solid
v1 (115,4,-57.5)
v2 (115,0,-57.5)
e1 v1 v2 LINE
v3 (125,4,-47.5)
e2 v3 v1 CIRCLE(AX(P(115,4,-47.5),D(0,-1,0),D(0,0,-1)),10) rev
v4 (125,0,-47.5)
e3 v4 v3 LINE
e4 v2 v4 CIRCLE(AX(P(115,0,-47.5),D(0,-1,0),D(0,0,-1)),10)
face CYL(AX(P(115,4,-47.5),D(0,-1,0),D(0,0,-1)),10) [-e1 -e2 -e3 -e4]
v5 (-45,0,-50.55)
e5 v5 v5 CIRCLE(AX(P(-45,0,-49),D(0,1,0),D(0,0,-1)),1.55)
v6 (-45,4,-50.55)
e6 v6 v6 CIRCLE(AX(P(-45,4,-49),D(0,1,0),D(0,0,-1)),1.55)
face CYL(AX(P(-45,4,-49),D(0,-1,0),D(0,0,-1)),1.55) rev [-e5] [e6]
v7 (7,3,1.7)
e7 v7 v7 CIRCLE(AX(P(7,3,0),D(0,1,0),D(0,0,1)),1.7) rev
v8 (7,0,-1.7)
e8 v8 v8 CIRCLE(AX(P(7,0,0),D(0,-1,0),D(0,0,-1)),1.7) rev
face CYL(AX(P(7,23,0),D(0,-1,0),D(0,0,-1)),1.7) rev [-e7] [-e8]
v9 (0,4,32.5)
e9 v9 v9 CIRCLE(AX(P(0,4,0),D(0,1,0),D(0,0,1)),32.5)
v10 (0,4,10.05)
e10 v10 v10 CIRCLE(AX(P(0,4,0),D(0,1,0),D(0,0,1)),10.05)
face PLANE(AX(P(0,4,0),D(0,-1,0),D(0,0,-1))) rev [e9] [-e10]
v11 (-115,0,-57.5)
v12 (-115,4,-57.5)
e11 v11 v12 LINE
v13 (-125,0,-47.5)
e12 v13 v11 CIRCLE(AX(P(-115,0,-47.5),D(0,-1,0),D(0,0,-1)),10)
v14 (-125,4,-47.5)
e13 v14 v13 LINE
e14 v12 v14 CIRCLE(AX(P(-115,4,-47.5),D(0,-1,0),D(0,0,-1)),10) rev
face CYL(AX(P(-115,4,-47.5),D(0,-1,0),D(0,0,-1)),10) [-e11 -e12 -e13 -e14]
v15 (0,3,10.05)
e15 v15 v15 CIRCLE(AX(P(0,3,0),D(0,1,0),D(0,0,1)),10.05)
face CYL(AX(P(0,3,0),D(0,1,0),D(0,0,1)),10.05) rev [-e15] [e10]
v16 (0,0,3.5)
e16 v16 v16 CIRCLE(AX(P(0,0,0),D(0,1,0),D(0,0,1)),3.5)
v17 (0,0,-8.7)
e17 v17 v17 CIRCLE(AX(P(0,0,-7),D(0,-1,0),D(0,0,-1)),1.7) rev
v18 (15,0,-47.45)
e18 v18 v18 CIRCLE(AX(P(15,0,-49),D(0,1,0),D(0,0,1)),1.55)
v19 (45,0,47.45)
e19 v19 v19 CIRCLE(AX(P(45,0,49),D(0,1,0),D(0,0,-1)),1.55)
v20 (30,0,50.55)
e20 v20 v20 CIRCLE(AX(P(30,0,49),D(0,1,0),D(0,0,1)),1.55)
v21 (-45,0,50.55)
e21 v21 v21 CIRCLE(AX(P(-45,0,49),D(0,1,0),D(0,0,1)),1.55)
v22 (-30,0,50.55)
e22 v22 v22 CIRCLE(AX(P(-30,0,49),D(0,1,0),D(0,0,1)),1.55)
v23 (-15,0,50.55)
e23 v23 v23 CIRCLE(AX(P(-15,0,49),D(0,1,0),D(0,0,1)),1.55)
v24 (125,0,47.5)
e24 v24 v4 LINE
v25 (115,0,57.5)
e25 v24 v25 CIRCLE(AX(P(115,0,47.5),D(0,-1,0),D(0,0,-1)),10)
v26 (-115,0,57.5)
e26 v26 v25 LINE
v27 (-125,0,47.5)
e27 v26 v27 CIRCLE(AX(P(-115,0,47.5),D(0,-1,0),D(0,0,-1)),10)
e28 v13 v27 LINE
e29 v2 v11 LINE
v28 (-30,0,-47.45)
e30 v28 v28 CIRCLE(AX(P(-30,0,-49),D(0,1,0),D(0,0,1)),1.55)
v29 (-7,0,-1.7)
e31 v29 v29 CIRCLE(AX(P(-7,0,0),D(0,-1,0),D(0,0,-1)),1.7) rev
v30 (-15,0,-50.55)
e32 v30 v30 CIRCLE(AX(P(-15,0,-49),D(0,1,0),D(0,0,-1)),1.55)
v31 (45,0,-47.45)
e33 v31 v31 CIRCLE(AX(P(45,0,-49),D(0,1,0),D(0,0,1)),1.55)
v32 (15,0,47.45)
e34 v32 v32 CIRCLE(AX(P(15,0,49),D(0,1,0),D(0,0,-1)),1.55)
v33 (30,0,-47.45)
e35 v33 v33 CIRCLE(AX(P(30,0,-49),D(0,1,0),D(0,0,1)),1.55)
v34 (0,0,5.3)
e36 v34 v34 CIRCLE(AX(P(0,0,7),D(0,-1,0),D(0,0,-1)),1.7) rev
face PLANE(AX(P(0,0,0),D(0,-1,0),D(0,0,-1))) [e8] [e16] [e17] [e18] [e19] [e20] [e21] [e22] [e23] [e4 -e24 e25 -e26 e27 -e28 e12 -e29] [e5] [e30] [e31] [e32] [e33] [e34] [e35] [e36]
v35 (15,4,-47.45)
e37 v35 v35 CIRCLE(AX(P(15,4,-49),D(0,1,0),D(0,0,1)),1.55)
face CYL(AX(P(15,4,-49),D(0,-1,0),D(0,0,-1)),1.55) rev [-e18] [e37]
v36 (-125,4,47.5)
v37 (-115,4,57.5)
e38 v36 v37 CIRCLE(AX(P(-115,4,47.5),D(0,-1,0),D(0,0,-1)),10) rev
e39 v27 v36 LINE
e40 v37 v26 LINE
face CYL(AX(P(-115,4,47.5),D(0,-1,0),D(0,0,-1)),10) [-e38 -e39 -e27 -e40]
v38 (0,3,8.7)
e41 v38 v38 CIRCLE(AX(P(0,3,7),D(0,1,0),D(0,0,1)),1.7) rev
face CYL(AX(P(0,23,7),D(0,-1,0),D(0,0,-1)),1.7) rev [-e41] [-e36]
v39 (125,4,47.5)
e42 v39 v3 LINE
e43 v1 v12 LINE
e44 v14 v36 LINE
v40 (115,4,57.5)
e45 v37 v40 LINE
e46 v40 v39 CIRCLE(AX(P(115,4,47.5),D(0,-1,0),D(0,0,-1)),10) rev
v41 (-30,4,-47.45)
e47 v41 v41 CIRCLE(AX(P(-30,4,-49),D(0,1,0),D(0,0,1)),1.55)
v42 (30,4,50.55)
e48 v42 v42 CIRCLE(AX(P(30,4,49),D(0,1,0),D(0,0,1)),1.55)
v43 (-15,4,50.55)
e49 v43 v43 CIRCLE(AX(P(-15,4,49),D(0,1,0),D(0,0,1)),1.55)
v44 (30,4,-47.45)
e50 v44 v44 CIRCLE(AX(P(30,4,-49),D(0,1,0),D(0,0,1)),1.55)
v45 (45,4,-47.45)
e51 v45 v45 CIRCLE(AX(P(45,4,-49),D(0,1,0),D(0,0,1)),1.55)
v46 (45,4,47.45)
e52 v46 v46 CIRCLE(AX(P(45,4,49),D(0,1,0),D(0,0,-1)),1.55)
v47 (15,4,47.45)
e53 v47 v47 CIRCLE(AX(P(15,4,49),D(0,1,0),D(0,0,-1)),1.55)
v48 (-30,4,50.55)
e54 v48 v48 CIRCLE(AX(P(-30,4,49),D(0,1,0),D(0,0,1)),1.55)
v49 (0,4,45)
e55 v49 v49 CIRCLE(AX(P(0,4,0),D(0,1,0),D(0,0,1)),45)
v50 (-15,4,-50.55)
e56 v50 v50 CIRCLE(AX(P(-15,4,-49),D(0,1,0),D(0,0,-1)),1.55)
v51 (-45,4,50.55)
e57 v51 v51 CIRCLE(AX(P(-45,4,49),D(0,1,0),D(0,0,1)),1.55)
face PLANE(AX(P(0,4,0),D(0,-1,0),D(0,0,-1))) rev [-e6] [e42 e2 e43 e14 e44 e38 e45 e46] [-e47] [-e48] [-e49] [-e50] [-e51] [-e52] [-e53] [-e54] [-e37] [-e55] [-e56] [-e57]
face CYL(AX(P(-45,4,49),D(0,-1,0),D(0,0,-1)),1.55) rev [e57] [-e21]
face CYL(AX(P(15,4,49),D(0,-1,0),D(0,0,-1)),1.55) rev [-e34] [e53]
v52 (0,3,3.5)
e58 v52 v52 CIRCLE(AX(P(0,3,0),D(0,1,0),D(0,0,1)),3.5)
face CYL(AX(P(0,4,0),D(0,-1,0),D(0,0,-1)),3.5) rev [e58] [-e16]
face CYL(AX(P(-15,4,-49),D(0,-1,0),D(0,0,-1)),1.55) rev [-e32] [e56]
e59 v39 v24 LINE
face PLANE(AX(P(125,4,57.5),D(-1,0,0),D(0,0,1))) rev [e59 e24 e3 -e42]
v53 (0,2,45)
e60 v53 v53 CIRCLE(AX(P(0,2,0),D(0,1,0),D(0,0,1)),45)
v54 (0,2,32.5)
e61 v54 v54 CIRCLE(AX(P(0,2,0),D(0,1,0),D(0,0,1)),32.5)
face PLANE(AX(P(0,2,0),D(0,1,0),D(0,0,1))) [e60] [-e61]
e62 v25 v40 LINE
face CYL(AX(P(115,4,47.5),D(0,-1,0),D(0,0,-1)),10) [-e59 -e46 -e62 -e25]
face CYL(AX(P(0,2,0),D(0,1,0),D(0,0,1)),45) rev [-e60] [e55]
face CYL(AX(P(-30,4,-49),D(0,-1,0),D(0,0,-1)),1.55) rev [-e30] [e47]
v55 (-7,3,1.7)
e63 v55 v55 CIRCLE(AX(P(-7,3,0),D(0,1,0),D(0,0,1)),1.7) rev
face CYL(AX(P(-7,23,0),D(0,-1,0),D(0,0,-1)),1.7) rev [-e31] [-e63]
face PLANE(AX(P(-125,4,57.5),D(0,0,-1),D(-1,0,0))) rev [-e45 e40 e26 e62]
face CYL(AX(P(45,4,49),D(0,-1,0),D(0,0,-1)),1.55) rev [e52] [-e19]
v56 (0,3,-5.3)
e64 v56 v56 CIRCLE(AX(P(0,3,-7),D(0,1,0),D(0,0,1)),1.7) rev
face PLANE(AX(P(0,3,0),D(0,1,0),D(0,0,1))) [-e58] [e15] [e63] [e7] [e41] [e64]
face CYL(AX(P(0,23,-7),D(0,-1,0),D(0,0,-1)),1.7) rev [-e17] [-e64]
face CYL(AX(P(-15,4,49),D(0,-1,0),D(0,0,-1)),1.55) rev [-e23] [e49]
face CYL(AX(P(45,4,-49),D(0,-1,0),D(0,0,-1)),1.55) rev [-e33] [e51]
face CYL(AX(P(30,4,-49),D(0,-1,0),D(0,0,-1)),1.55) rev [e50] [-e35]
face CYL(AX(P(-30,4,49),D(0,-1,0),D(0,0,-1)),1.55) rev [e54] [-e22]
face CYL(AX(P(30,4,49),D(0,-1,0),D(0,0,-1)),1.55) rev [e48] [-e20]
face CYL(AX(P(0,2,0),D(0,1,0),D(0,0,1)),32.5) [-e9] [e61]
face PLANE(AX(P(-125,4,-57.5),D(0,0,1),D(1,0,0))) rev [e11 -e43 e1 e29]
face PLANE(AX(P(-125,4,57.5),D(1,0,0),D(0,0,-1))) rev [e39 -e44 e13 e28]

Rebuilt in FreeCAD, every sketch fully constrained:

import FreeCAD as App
import Part
import Sketcher
from FreeCAD import Vector


def edges_at(feature, points):
    """Names of the edges that pass closest to the given points."""
    edges = feature.Shape.Edges
    near = lambda p: min(range(len(edges)), key=lambda i: edges[i].distToShape(Part.Vertex(*p))[0])
    return sorted({f"Edge{near(p) + 1}" for p in points})


def add_polygon(sketch, points):
    """Adds a closed chain of lines whose ends are joined by coincident constraints."""
    first, n = sketch.GeometryCount, len(points)
    for a, b in zip(points, points[1:] + points[:1]):
        sketch.addGeometry(Part.LineSegment(App.Vector(*a, 0), App.Vector(*b, 0)), False)
    for i in range(n):
        sketch.addConstraint(Sketcher.Constraint("Coincident", first + i, 2, first + (i + 1) % n, 1))

doc = App.newDocument("Part")
body = doc.addObject("PartDesign::Body", "Body")

# Sketch on XZ plane
sketch1 = doc.addObject("Sketcher::SketchObject", "Sketch")
body.addObject(sketch1)
sketch1.AttachmentSupport = (doc.XZ_Plane, [""])
sketch1.MapMode = "FlatFace"
add_polygon(sketch1, [(-125, -57.5), (-125, 57.5), (125, 57.5), (125, -57.5)])  # lines 0-3
sketch1.addGeometry(Part.Circle(Vector(-45, 49, 0), Vector(0, 0, 1), 1.55), False)  # 4
sketch1.addGeometry(Part.Circle(Vector(-30, 49, 0), Vector(0, 0, 1), 1.55), False)  # 5
sketch1.addGeometry(Part.Circle(Vector(-15, 49, 0), Vector(0, 0, 1), 1.55), False)  # 6
sketch1.addGeometry(Part.Circle(Vector(15, 49, 0), Vector(0, 0, 1), 1.55), False)  # 7
sketch1.addGeometry(Part.Circle(Vector(30, 49, 0), Vector(0, 0, 1), 1.55), False)  # 8
sketch1.addGeometry(Part.Circle(Vector(45, 49, 0), Vector(0, 0, 1), 1.55), False)  # 9
sketch1.addGeometry(Part.Circle(Vector(-45, -49, 0), Vector(0, 0, 1), 1.55), False)  # 10
sketch1.addGeometry(Part.Circle(Vector(-30, -49, 0), Vector(0, 0, 1), 1.55), False)  # 11
sketch1.addGeometry(Part.Circle(Vector(-15, -49, 0), Vector(0, 0, 1), 1.55), False)  # 12
sketch1.addGeometry(Part.Circle(Vector(0, 0, 0), Vector(0, 0, 1), 3.5), False)  # 13
sketch1.addGeometry(Part.Circle(Vector(15, -49, 0), Vector(0, 0, 1), 1.55), False)  # 14
sketch1.addGeometry(Part.Circle(Vector(30, -49, 0), Vector(0, 0, 1), 1.55), False)  # 15
sketch1.addGeometry(Part.Circle(Vector(45, -49, 0), Vector(0, 0, 1), 1.55), False)  # 16
sketch1.addConstraint([
    Sketcher.Constraint("Vertical", 0),
    Sketcher.Constraint("Horizontal", 1),
    Sketcher.Constraint("Vertical", 2),
    Sketcher.Constraint("Horizontal", 3),
    Sketcher.Constraint("Coincident", 13, 3, -1, 1),
    Sketcher.Constraint("Equal", 4, 5),
    Sketcher.Constraint("Equal", 5, 6),
    Sketcher.Constraint("Equal", 6, 7),
    Sketcher.Constraint("Equal", 7, 8),
    Sketcher.Constraint("Equal", 8, 9),
    Sketcher.Constraint("Equal", 9, 10),
    Sketcher.Constraint("Equal", 10, 11),
    Sketcher.Constraint("Equal", 11, 12),
    Sketcher.Constraint("Equal", 12, 14),
    Sketcher.Constraint("Equal", 14, 15),
    Sketcher.Constraint("Equal", 15, 16),
    Sketcher.Constraint("Symmetric", 9, 3, 10, 3, -1, 1),
    Sketcher.Constraint("Symmetric", 8, 3, 11, 3, -1, 1),
    Sketcher.Constraint("Symmetric", 7, 3, 12, 3, -1, 1),
    Sketcher.Constraint("Symmetric", 6, 3, 14, 3, -1, 1),
    Sketcher.Constraint("Symmetric", 5, 3, 15, 3, -1, 1),
    Sketcher.Constraint("Symmetric", 4, 3, 16, 3, -1, 1),
    Sketcher.Constraint("Symmetric", 0, 2, 2, 2, -1, 1),
    Sketcher.Constraint("Symmetric", 6, 3, 7, 3, -2),
    Sketcher.Constraint("Symmetric", 5, 3, 8, 3, -2),
    Sketcher.Constraint("Symmetric", 4, 3, 9, 3, -2),
    Sketcher.Constraint("Horizontal", 4, 3, 5, 3),
    Sketcher.Constraint("Horizontal", 5, 3, 6, 3),
    Sketcher.Constraint("Diameter", 13, 7.0),
    Sketcher.Constraint("Diameter", 4, 3.1),
    Sketcher.Constraint("DistanceX", 1, 1, 1, 2, 250.0),
    Sketcher.Constraint("DistanceY", 0, 1, 0, 2, 115.0),
    Sketcher.Constraint("DistanceX", 4, 3, -1, 1, 45.0),
    Sketcher.Constraint("DistanceY", -1, 1, 4, 3, 49.0),
    Sketcher.Constraint("DistanceX", 5, 3, -1, 1, 30.0),
    Sketcher.Constraint("DistanceX", 6, 3, -1, 1, 15.0),
])
pad1 = doc.addObject("PartDesign::Pad", "Pad")
body.addObject(pad1)
pad1.Profile = sketch1
pad1.Length = 4
pad1.Reversed = True

# Sketch on XZ plane
sketch2 = doc.addObject("Sketcher::SketchObject", "Sketch001")
body.addObject(sketch2)
sketch2.AttachmentSupport = (doc.XZ_Plane, [""])
sketch2.MapMode = "FlatFace"
sketch2.AttachmentOffset = App.Placement(Vector(0, 0, -4), App.Rotation())
sketch2.addGeometry([
    Part.Circle(Vector(0, 0, 0), Vector(0, 0, 1), 45),
    Part.Circle(Vector(0, 0, 0), Vector(0, 0, 1), 32.5),
], False)
sketch2.addConstraint([
    Sketcher.Constraint("Coincident", 0, 3, -1, 1),
    Sketcher.Constraint("Coincident", 1, 3, -1, 1),
    Sketcher.Constraint("Diameter", 0, 90.0),
    Sketcher.Constraint("Diameter", 1, 65.0),
])
pocket1 = doc.addObject("PartDesign::Pocket", "Pocket")
body.addObject(pocket1)
pocket1.Profile = sketch2
pocket1.Length = 2
pocket1.Reversed = True

# Sketch on XZ plane
sketch3 = doc.addObject("Sketcher::SketchObject", "Sketch002")
body.addObject(sketch3)
sketch3.AttachmentSupport = (doc.XZ_Plane, [""])
sketch3.MapMode = "FlatFace"
sketch3.AttachmentOffset = App.Placement(Vector(0, 0, -4), App.Rotation())
sketch3.addGeometry([
    Part.Circle(Vector(0, 0, 0), Vector(0, 0, 1), 10.05),  # 0
    Part.Circle(Vector(0, -7, 0), Vector(0, 0, 1), 1.7),  # 1
    Part.Circle(Vector(-7, 0, 0), Vector(0, 0, 1), 1.7),  # 2
    Part.Circle(Vector(7, 0, 0), Vector(0, 0, 1), 1.7),  # 3
    Part.Circle(Vector(0, 7, 0), Vector(0, 0, 1), 1.7),  # 4
], False)
sketch3.addConstraint([
    Sketcher.Constraint("Coincident", 0, 3, -1, 1),
    Sketcher.Constraint("Equal", 1, 2),
    Sketcher.Constraint("Equal", 2, 3),
    Sketcher.Constraint("Equal", 3, 4),
    Sketcher.Constraint("Symmetric", 2, 3, 3, 3, -1, 1),
    Sketcher.Constraint("Symmetric", 1, 3, 4, 3, -1, 1),
    Sketcher.Constraint("PointOnObject", 1, 3, -2),
    Sketcher.Constraint("PointOnObject", 2, 3, -1),
    Sketcher.Constraint("Diameter", 0, 20.1),
    Sketcher.Constraint("Diameter", 1, 3.4),
    Sketcher.Constraint("DistanceY", 1, 3, -1, 1, 7.0),
    Sketcher.Constraint("DistanceX", 2, 3, -1, 1, 7.0),
])
pocket2 = doc.addObject("PartDesign::Pocket", "Pocket001")
body.addObject(pocket2)
pocket2.Profile = sketch3
pocket2.Length = 1
pocket2.Reversed = True

# Sketch on XZ plane
sketch4 = doc.addObject("Sketcher::SketchObject", "Sketch003")
body.addObject(sketch4)
sketch4.AttachmentSupport = (doc.XZ_Plane, [""])
sketch4.MapMode = "FlatFace"
sketch4.AttachmentOffset = App.Placement(Vector(0, 0, -3), App.Rotation())
sketch4.addGeometry([
    Part.Circle(Vector(7, 0, 0), Vector(0, 0, 1), 1.7),
    Part.Circle(Vector(0, -7, 0), Vector(0, 0, 1), 1.7),
    Part.Circle(Vector(0, 7, 0), Vector(0, 0, 1), 1.7),
    Part.Circle(Vector(-7, 0, 0), Vector(0, 0, 1), 1.7),
], False)
sketch4.addConstraint([
    Sketcher.Constraint("Equal", 0, 1),
    Sketcher.Constraint("Equal", 1, 2),
    Sketcher.Constraint("Equal", 2, 3),
    Sketcher.Constraint("Symmetric", 1, 3, 2, 3, -1, 1),
    Sketcher.Constraint("Symmetric", 0, 3, 3, 3, -1, 1),
    Sketcher.Constraint("PointOnObject", 0, 3, -1),
    Sketcher.Constraint("PointOnObject", 1, 3, -2),
    Sketcher.Constraint("Diameter", 0, 3.4),
    Sketcher.Constraint("DistanceX", -1, 1, 0, 3, 7.0),
    Sketcher.Constraint("DistanceY", 1, 3, -1, 1, 7.0),
])
pocket3 = doc.addObject("PartDesign::Pocket", "Pocket002")
body.addObject(pocket3)
pocket3.Profile = sketch4
pocket3.Type = "ThroughAll"
pocket3.Midplane = True
doc.recompute()

fillet = doc.addObject("PartDesign::Fillet", "Fillet")
body.addObject(fillet)
fillet.Base = (pocket3, edges_at(pocket3, [
    (125, 2, 57.5),
    (-125, 2, 57.5),
    (-125, 2, -57.5),
    (125, 2, -57.5),
]))
fillet.Radius = 10

doc.recompute()
